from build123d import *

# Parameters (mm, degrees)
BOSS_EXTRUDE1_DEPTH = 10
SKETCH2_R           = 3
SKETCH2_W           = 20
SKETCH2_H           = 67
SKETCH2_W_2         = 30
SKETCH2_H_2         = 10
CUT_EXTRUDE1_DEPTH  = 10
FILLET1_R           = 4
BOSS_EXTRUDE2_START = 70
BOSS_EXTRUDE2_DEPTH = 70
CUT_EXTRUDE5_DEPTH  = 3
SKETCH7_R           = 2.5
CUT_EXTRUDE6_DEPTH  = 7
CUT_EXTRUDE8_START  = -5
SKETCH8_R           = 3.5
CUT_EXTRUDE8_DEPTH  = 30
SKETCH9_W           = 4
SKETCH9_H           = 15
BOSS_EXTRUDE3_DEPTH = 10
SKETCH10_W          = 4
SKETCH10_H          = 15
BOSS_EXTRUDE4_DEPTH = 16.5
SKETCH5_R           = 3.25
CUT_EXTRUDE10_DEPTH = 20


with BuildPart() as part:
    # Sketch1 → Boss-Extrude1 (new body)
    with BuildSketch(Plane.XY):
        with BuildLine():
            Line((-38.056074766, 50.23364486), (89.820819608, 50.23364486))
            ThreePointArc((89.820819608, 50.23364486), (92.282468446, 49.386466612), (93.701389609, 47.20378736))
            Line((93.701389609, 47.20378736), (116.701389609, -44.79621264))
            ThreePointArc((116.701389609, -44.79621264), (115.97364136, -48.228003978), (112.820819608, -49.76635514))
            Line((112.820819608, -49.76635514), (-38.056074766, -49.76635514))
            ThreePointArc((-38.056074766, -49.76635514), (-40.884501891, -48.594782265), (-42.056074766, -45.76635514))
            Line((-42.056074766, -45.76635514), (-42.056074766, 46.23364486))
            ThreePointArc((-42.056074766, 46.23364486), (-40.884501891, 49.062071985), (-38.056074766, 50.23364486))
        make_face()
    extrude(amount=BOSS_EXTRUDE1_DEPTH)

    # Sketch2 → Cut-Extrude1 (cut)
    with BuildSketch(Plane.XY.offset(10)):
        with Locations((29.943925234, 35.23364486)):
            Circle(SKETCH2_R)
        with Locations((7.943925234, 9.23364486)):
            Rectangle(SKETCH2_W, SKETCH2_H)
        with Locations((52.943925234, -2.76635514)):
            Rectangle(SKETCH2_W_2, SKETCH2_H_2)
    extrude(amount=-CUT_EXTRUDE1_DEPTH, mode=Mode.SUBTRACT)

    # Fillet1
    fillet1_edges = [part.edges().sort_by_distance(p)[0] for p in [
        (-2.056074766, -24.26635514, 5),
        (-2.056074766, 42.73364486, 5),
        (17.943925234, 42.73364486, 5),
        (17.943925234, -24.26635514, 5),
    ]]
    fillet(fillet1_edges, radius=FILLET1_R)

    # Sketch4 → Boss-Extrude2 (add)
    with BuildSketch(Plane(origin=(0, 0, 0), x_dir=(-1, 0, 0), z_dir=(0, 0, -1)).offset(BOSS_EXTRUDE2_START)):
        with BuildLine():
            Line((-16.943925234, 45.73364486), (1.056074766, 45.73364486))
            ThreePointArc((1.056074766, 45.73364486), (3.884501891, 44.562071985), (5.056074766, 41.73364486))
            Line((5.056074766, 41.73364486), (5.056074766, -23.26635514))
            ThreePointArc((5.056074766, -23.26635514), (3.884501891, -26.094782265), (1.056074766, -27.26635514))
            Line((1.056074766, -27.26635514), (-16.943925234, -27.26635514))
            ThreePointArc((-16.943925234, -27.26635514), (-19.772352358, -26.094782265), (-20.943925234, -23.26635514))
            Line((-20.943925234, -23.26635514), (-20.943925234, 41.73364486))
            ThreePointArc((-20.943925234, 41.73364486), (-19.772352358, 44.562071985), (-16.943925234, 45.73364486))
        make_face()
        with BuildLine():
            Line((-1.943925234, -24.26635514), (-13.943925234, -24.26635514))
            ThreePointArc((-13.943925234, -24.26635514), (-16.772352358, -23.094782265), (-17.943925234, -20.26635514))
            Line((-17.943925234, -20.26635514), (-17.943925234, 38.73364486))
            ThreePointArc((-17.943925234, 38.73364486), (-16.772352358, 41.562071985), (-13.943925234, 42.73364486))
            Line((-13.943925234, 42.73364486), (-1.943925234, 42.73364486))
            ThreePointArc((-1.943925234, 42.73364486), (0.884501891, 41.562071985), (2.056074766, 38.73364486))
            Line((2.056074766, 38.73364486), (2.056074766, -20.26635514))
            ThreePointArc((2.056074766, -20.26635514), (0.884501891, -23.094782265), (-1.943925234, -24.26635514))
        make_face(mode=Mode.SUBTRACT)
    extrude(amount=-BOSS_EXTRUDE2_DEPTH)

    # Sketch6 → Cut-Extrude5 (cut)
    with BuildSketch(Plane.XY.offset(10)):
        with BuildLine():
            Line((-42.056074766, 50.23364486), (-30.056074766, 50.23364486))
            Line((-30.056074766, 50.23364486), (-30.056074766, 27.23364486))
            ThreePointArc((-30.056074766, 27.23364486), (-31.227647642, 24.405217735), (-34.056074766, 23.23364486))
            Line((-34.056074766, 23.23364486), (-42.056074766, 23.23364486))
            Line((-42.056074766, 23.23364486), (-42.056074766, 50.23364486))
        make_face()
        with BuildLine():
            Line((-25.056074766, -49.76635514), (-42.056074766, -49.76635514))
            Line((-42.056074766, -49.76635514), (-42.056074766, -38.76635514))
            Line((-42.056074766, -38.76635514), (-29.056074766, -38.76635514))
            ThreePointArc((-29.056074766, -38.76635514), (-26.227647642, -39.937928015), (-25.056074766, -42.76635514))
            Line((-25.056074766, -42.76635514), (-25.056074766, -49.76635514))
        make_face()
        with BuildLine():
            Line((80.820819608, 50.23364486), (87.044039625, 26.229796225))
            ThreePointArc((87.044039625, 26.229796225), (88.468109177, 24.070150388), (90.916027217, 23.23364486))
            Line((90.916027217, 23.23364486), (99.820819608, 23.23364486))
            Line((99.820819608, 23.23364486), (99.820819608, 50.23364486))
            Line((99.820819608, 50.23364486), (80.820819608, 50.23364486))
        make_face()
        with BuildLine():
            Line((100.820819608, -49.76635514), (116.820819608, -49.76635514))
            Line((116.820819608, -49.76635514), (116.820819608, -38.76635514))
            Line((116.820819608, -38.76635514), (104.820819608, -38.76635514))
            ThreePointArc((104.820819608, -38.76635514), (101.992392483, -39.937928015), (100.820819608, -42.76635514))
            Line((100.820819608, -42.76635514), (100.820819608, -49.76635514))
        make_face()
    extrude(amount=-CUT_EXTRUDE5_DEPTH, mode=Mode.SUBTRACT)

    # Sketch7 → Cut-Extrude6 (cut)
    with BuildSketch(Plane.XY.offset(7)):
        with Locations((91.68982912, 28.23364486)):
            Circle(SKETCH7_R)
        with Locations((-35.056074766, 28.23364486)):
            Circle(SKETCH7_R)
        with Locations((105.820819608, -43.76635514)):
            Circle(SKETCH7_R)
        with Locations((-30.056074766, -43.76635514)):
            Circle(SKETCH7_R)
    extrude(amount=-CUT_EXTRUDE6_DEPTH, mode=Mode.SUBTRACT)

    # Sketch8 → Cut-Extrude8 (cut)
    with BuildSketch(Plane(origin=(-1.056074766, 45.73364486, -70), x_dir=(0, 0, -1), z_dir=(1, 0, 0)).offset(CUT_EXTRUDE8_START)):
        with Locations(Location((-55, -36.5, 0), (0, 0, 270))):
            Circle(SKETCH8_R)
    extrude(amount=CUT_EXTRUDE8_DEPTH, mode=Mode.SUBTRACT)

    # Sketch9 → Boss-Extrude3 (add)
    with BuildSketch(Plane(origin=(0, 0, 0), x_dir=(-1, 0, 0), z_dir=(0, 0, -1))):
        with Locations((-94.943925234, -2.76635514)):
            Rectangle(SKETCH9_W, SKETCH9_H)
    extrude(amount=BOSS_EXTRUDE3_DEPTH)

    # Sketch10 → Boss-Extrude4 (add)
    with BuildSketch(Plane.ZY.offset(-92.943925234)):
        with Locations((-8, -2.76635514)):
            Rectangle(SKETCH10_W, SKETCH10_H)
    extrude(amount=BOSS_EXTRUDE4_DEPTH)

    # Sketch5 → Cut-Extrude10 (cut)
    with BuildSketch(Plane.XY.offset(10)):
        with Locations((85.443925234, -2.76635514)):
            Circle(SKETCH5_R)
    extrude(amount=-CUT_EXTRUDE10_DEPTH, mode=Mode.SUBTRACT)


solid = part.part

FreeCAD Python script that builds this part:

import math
import FreeCAD as App
import Part
import Sketcher
from FreeCAD import Vector


def edges_at(feature, points):
    """Names of the edges that pass closest to the given points."""
    edges = feature.Shape.Edges
    near = lambda p: min(range(len(edges)), key=lambda i: edges[i].distToShape(Part.Vertex(*p))[0])
    return sorted({f"Edge{near(p) + 1}" for p in points})


def add_polygon(sketch, points):
    """Adds a closed chain of lines whose ends are joined by coincident constraints."""
    first, n = sketch.GeometryCount, len(points)
    for a, b in zip(points, points[1:] + points[:1]):
        sketch.addGeometry(Part.LineSegment(App.Vector(*a, 0), App.Vector(*b, 0)), False)
    for i in range(n):
        sketch.addConstraint(Sketcher.Constraint("Coincident", first + i, 2, first + (i + 1) % n, 1))

doc = App.newDocument("Part")
body = doc.addObject("PartDesign::Body", "Body")

# Sketch on XY plane
sketch1 = body.newObject("Sketcher::SketchObject", "Sketch")
sketch1.AttachmentSupport = (doc.getObject("XY_Plane"), [""])
sketch1.MapMode = "FlatFace"
sketch1.addGeometry([
    Part.LineSegment(Vector(89.8, 50.2, 0), Vector(-38.1, 50.2, 0)),  # 0
    Part.ArcOfCircle(Part.Circle(Vector(-38.1, 46.2, 0), Vector(0, 0, 1), 4), math.radians(90), math.radians(180)),  # 1
    Part.LineSegment(Vector(-42.1, 46.2, 0), Vector(-42.1, -45.8, 0)),  # 2
    Part.ArcOfCircle(Part.Circle(Vector(-38.1, -45.8, 0), Vector(0, 0, 1), 4), math.radians(180), math.radians(270)),  # 3
    Part.LineSegment(Vector(-38.1, -49.8, 0), Vector(112.8, -49.8, 0)),  # 4
    Part.ArcOfCircle(Part.Circle(Vector(112.8, -45.8, 0), Vector(0, 0, 1), 4), math.radians(-90), math.radians(14)),  # 5
    Part.LineSegment(Vector(116.7, -44.8, 0), Vector(93.7, 47.2, 0)),  # 6
    Part.ArcOfCircle(Part.Circle(Vector(89.8, 46.2, 0), Vector(0, 0, 1), 4), math.radians(14), math.radians(90)),  # 7
], False)
sketch1.addConstraint([
    Sketcher.Constraint("Tangent", 0, 2, 1, 1),
    Sketcher.Constraint("Tangent", 1, 2, 2, 1),
    Sketcher.Constraint("Tangent", 2, 2, 3, 1),
    Sketcher.Constraint("Tangent", 3, 2, 4, 1),
    Sketcher.Constraint("Tangent", 4, 2, 5, 1),
    Sketcher.Constraint("Tangent", 5, 2, 6, 1),
    Sketcher.Constraint("Tangent", 6, 2, 7, 1),
    Sketcher.Constraint("Tangent", 7, 2, 0, 1),
    Sketcher.Constraint("Horizontal", 0),
    Sketcher.Constraint("Vertical", 2),
    Sketcher.Constraint("Horizontal", 4),
    Sketcher.Constraint("Equal", 1, 3),
    Sketcher.Constraint("Equal", 3, 5),
    Sketcher.Constraint("Equal", 5, 7),
    Sketcher.Constraint("Radius", 1, 4.0),
    Sketcher.Constraint("DistanceY", 2, 2, 2, 1, 92.0),
    Sketcher.Constraint("DistanceX", 7, 3, 5, 3, 23.0),
    Sketcher.Constraint("DistanceX", 0, 2, 0, 1, 127.876894),
    Sketcher.Constraint("DistanceX", -1, 1, 5, 3, 112.82082),
    Sketcher.Constraint("DistanceY", -1, 1, 1, 3, 46.233645),
])
pad1 = body.newObject("PartDesign::Pad", "Pad")
pad1.Profile = sketch1
pad1.Length = 10

# Sketch on XY plane
sketch2 = body.newObject("Sketcher::SketchObject", "Sketch001")
sketch2.AttachmentSupport = (doc.getObject("XY_Plane"), [""])
sketch2.MapMode = "FlatFace"
sketch2.AttachmentOffset = App.Placement(Vector(0, 0, 10), App.Rotation())
sketch2.addGeometry(Part.Circle(Vector(29.9, 35.2, 0), Vector(0, 0, 1), 3), False)  # 0
add_polygon(sketch2, [(-2.1, 42.7), (-2.1, -24.3), (17.9, -24.3), (17.9, 42.7)])  # lines 1-4
add_polygon(sketch2, [(37.9, 2.2), (37.9, -7.8), (67.9, -7.8), (67.9, 2.2)])  # lines 5-8
sketch2.addConstraint([
    Sketcher.Constraint("Vertical", 1),
    Sketcher.Constraint("Horizontal", 2),
    Sketcher.Constraint("Vertical", 3),
    Sketcher.Constraint("Horizontal", 4),
    Sketcher.Constraint("Vertical", 5),
    Sketcher.Constraint("Horizontal", 6),
    Sketcher.Constraint("Vertical", 7),
    Sketcher.Constraint("Horizontal", 8),
    Sketcher.Constraint("Diameter", 0, 6.0),
    Sketcher.Constraint("DistanceX", 2, 1, 2, 2, 20.0),
    Sketcher.Constraint("DistanceX", 6, 1, 6, 2, 30.0),
    Sketcher.Constraint("DistanceY", 1, 2, 1, 1, 67.0),
    Sketcher.Constraint("DistanceY", 5, 2, 5, 1, 10.0),
    Sketcher.Constraint("DistanceX", 1, 2, 0, 3, 32.0),
    Sketcher.Constraint("DistanceX", 2, 2, 5, 2, 20.0),
    Sketcher.Constraint("DistanceY", 5, 2, 0, 3, 43.0),
    Sketcher.Constraint("DistanceY", 1, 2, 0, 3, 59.5),
    Sketcher.Constraint("DistanceX", -1, 1, 0, 3, 29.943925),
    Sketcher.Constraint("DistanceY", -1, 1, 0, 3, 35.233645),
])
pocket1 = body.newObject("PartDesign::Pocket", "Pocket")
pocket1.Profile = sketch2
pocket1.Length = 10
doc.recompute()

fillet = body.newObject("PartDesign::Fillet", "Fillet")
fillet.Base = (pocket1, edges_at(pocket1, [
    (-2.056, -24.266, 5),
    (-2.056, 42.734, 5),
    (17.944, 42.734, 5),
    (17.944, -24.266, 5),
]))
fillet.Radius = 4

# Sketch on XY plane
sketch3 = body.newObject("Sketcher::SketchObject", "Sketch002")
sketch3.AttachmentSupport = (doc.getObject("XY_Plane"), [""])
sketch3.MapMode = "FlatFace"
sketch3.AttachmentOffset = App.Placement(Vector(0, 0, -70), App.Rotation())
sketch3.addGeometry([
    Part.LineSegment(Vector(-1.1, 45.7, 0), Vector(16.9, 45.7, 0)),  # 0
    Part.ArcOfCircle(Part.Circle(Vector(16.9, 41.7, 0), Vector(0, 0, 1), 4), math.radians(0), math.radians(90)),  # 1
    Part.LineSegment(Vector(20.9, 41.7, 0), Vector(20.9, -23.3, 0)),  # 2
    Part.ArcOfCircle(Part.Circle(Vector(16.9, -23.3, 0), Vector(0, 0, 1), 4), math.radians(-90), math.radians(0)),  # 3
    Part.LineSegment(Vector(16.9, -27.3, 0), Vector(-1.1, -27.3, 0)),  # 4
    Part.ArcOfCircle(Part.Circle(Vector(-1.1, -23.3, 0), Vector(0, 0, 1), 4), math.radians(180), math.radians(270)),  # 5
    Part.LineSegment(Vector(-5.1, -23.3, 0), Vector(-5.1, 41.7, 0)),  # 6
    Part.ArcOfCircle(Part.Circle(Vector(-1.1, 41.7, 0), Vector(0, 0, 1), 4), math.radians(90), math.radians(180)),  # 7
    Part.LineSegment(Vector(1.9, -24.3, 0), Vector(13.9, -24.3, 0)),  # 8
    Part.ArcOfCircle(Part.Circle(Vector(13.9, -20.3, 0), Vector(0, 0, 1), 4), math.radians(-90), math.radians(0)),  # 9
    Part.LineSegment(Vector(17.9, -20.3, 0), Vector(17.9, 38.7, 0)),  # 10
    Part.ArcOfCircle(Part.Circle(Vector(13.9, 38.7, 0), Vector(0, 0, 1), 4), math.radians(0), math.radians(90)),  # 11
    Part.LineSegment(Vector(13.9, 42.7, 0), Vector(1.9, 42.7, 0)),  # 12
    Part.ArcOfCircle(Part.Circle(Vector(1.9, 38.7, 0), Vector(0, 0, 1), 4), math.radians(90), math.radians(180)),  # 13
    Part.LineSegment(Vector(-2.1, 38.7, 0), Vector(-2.1, -20.3, 0)),  # 14
    Part.ArcOfCircle(Part.Circle(Vector(1.9, -20.3, 0), Vector(0, 0, 1), 4), math.radians(180), math.radians(270)),  # 15
], False)
sketch3.addConstraint([
    Sketcher.Constraint("Tangent", 0, 2, 1, 2),
    Sketcher.Constraint("Tangent", 1, 1, 2, 1),
    Sketcher.Constraint("Tangent", 2, 2, 3, 2),
    Sketcher.Constraint("Tangent", 3, 1, 4, 1),
    Sketcher.Constraint("Tangent", 4, 2, 5, 2),
    Sketcher.Constraint("Tangent", 5, 1, 6, 1),
    Sketcher.Constraint("Tangent", 6, 2, 7, 2),
    Sketcher.Constraint("Tangent", 7, 1, 0, 1),
    Sketcher.Constraint("Tangent", 8, 2, 9, 1),
    Sketcher.Constraint("Tangent", 9, 2, 10, 1),
    Sketcher.Constraint("Tangent", 10, 2, 11, 1),
    Sketcher.Constraint("Tangent", 11, 2, 12, 1),
    Sketcher.Constraint("Tangent", 12, 2, 13, 1),
    Sketcher.Constraint("Tangent", 13, 2, 14, 1),
    Sketcher.Constraint("Tangent", 14, 2, 15, 1),
    Sketcher.Constraint("Tangent", 15, 2, 8, 1),
    Sketcher.Constraint("Horizontal", 0),
    Sketcher.Constraint("Vertical", 2),
    Sketcher.Constraint("Horizontal", 4),
    Sketcher.Constraint("Vertical", 6),
    Sketcher.Constraint("Horizontal", 8),
    Sketcher.Constraint("Vertical", 10),
    Sketcher.Constraint("Horizontal", 12),
    Sketcher.Constraint("Vertical", 14),
    Sketcher.Constraint("Equal", 1, 3),
    Sketcher.Constraint("Equal", 3, 5),
    Sketcher.Constraint("Equal", 5, 7),
    Sketcher.Constraint("Equal", 7, 9),
    Sketcher.Constraint("Equal", 9, 11),
    Sketcher.Constraint("Equal", 11, 13),
    Sketcher.Constraint("Equal", 13, 15),
    Sketcher.Constraint("Radius", 1, 4.0),
    Sketcher.Constraint("DistanceX", 0, 1, 0, 2, 18.0),
    Sketcher.Constraint("DistanceX", 8, 1, 8, 2, 12.0),
    Sketcher.Constraint("DistanceY", 2, 2, 2, 1, 65.0),
    Sketcher.Constraint("DistanceY", 10, 1, 10, 2, 59.0),
    Sketcher.Constraint("DistanceX", 9, 3, 3, 3, 3.0),
    Sketcher.Constraint("DistanceY", 3, 3, 9, 3, 3.0),
    Sketcher.Constraint("DistanceX", -1, 1, 1, 3, 16.943925),
    Sketcher.Constraint("DistanceY", -1, 1, 1, 3, 41.733645),
])
pad2 = body.newObject("PartDesign::Pad", "Pad001")
pad2.Profile = sketch3
pad2.Length = 70

# Sketch on XY plane
sketch4 = body.newObject("Sketcher::SketchObject", "Sketch003")
sketch4.AttachmentSupport = (doc.getObject("XY_Plane"), [""])
sketch4.MapMode = "FlatFace"
sketch4.AttachmentOffset = App.Placement(Vector(0, 0, 10), App.Rotation())
sketch4.addGeometry([
    Part.LineSegment(Vector(-30.1, 50.2, 0), Vector(-42.1, 50.2, 0)),  # 0
    Part.LineSegment(Vector(-42.1, 50.2, 0), Vector(-42.1, 23.2, 0)),  # 1
    Part.LineSegment(Vector(-42.1, 23.2, 0), Vector(-34.1, 23.2, 0)),  # 2
    Part.ArcOfCircle(Part.Circle(Vector(-34.1, 27.2, 0), Vector(0, 0, 1), 4), math.radians(-90), math.radians(0)),  # 3
    Part.LineSegment(Vector(-30.1, 27.2, 0), Vector(-30.1, 50.2, 0)),  # 4
    Part.LineSegment(Vector(-42.1, -49.8, 0), Vector(-25.1, -49.8, 0)),  # 5
    Part.LineSegment(Vector(-25.1, -49.8, 0), Vector(-25.1, -42.8, 0)),  # 6
    Part.ArcOfCircle(Part.Circle(Vector(-29.1, -42.8, 0), Vector(0, 0, 1), 4), math.radians(0), math.radians(90)),  # 7
    Part.LineSegment(Vector(-29.1, -38.8, 0), Vector(-42.1, -38.8, 0)),  # 8
    Part.LineSegment(Vector(-42.1, -38.8, 0), Vector(-42.1, -49.8, 0)),  # 9
    Part.LineSegment(Vector(80.8, 50.2, 0), Vector(87, 26.2, 0)),  # 10
    Part.ArcOfCircle(Part.Circle(Vector(90.9, 27.2, 0), Vector(0, 0, 1), 4), math.radians(-165), math.radians(-90)),  # 11
    Part.LineSegment(Vector(90.9, 23.2, 0), Vector(99.8, 23.2, 0)),  # 12
    Part.LineSegment(Vector(99.8, 23.2, 0), Vector(99.8, 50.2, 0)),  # 13
    Part.LineSegment(Vector(99.8, 50.2, 0), Vector(80.8, 50.2, 0)),  # 14
    Part.LineSegment(Vector(100.8, -49.8, 0), Vector(116.8, -49.8, 0)),  # 15
    Part.LineSegment(Vector(116.8, -49.8, 0), Vector(116.8, -38.8, 0)),  # 16
    Part.LineSegment(Vector(116.8, -38.8, 0), Vector(104.8, -38.8, 0)),  # 17
    Part.ArcOfCircle(Part.Circle(Vector(104.8, -42.8, 0), Vector(0, 0, 1), 4), math.radians(90), math.radians(180)),  # 18
    Part.LineSegment(Vector(100.8, -42.8, 0), Vector(100.8, -49.8, 0)),  # 19
], False)
sketch4.addConstraint([
    Sketcher.Constraint("Coincident", 0, 2, 1, 1),
    Sketcher.Constraint("Coincident", 1, 2, 2, 1),
    Sketcher.Constraint("Tangent", 2, 2, 3, 1),
    Sketcher.Constraint("Tangent", 3, 2, 4, 1),
    Sketcher.Constraint("Coincident", 4, 2, 0, 1),
    Sketcher.Constraint("Coincident", 5, 2, 6, 1),
    Sketcher.Constraint("Tangent", 6, 2, 7, 1),
    Sketcher.Constraint("Tangent", 7, 2, 8, 1),
    Sketcher.Constraint("Coincident", 8, 2, 9, 1),
    Sketcher.Constraint("Coincident", 9, 2, 5, 1),
    Sketcher.Constraint("Tangent", 10, 2, 11, 1),
    Sketcher.Constraint("Tangent", 11, 2, 12, 1),
    Sketcher.Constraint("Coincident", 12, 2, 13, 1),
    Sketcher.Constraint("Coincident", 13, 2, 14, 1),
    Sketcher.Constraint("Coincident", 14, 2, 10, 1),
    Sketcher.Constraint("Coincident", 15, 2, 16, 1),
    Sketcher.Constraint("Coincident", 16, 2, 17, 1),
    Sketcher.Constraint("Tangent", 17, 2, 18, 1),
    Sketcher.Constraint("Tangent", 18, 2, 19, 1),
    Sketcher.Constraint("Coincident", 19, 2, 15, 1),
    Sketcher.Constraint("Horizontal", 0),
    Sketcher.Constraint("Vertical", 1),
    Sketcher.Constraint("Horizontal", 2),
    Sketcher.Constraint("Vertical", 4),
    Sketcher.Constraint("Horizontal", 5),
    Sketcher.Constraint("Vertical", 6),
    Sketcher.Constraint("Horizontal", 8),
    Sketcher.Constraint("Vertical", 9),
    Sketcher.Constraint("Horizontal", 12),
    Sketcher.Constraint("Vertical", 13),
    Sketcher.Constraint("Horizontal", 14),
    Sketcher.Constraint("Horizontal", 15),
    Sketcher.Constraint("Vertical", 16),
    Sketcher.Constraint("Horizontal", 17),
    Sketcher.Constraint("Vertical", 19),
    Sketcher.Constraint("Equal", 3, 7),
    Sketcher.Constraint("Equal", 7, 11),
    Sketcher.Constraint("Equal", 11, 18),
    Sketcher.Constraint("Horizontal", 3, 3, 11, 3),
    Sketcher.Constraint("Horizontal", 7, 3, 18, 3),
    Sketcher.Constraint("Horizontal", 4, 2, 13, 2),
    Sketcher.Constraint("Horizontal", 9, 2, 15, 2),
    Sketcher.Constraint("Vertical", 1, 2, 8, 2),
    Sketcher.Constraint("Equal", 0, 17),
    Sketcher.Constraint("Radius", 3, 4.0),
    Sketcher.Constraint("DistanceX", 0, 2, 0, 1, 12.0),
    Sketcher.Constraint("DistanceX", 5, 1, 5, 2, 17.0),
    Sketcher.Constraint("DistanceX", 14, 2, 14, 1, 19.0),
    Sketcher.Constraint("DistanceY", 1, 2, 1, 1, 27.0),
    Sketcher.Constraint("DistanceY", 6, 1, 6, 2, 7.0),
    Sketcher.Constraint("DistanceY", 7, 3, 3, 3, 70.0),
    Sketcher.Constraint("DistanceX", 12, 2, 18, 3, 5.0),
    Sketcher.Constraint("DistanceX", 3, 3, 11, 3, 124.972102),
    Sketcher.Constraint("DistanceX", 12, 1, 12, 2, 8.904792),
    Sketcher.Constraint("DistanceX", -1, 1, 18, 3, 104.82082),
    Sketcher.Constraint("DistanceY", -1, 1, 3, 3, 27.233645),
])
pocket2 = body.newObject("PartDesign::Pocket", "Pocket001")
pocket2.Profile = sketch4
pocket2.Length = 3

# Sketch on XY plane
sketch5 = body.newObject("Sketcher::SketchObject", "Sketch004")
sketch5.AttachmentSupport = (doc.getObject("XY_Plane"), [""])
sketch5.MapMode = "FlatFace"
sketch5.AttachmentOffset = App.Placement(Vector(0, 0, 7), App.Rotation())
sketch5.addGeometry([
    Part.Circle(Vector(91.7, 28.2, 0), Vector(0, 0, 1), 2.5),
    Part.Circle(Vector(-35.1, 28.2, 0), Vector(0, 0, 1), 2.5),
    Part.Circle(Vector(105.8, -43.8, 0), Vector(0, 0, 1), 2.5),
    Part.Circle(Vector(-30.1, -43.8, 0), Vector(0, 0, 1), 2.5),
], False)
sketch5.addConstraint([
    Sketcher.Constraint("Equal", 0, 1),
    Sketcher.Constraint("Equal", 1, 2),
    Sketcher.Constraint("Equal", 2, 3),
    Sketcher.Constraint("Horizontal", 0, 3, 1, 3),
    Sketcher.Constraint("Horizontal", 2, 3, 3, 3),
    Sketcher.Constraint("Diameter", 0, 5.0),
    Sketcher.Constraint("DistanceY", 2, 3, 0, 3, 72.0),
    Sketcher.Constraint("DistanceX", 1, 3, 3, 3, 5.0),
    Sketcher.Constraint("DistanceX", -1, 1, 0, 3, 91.689829),
    Sketcher.Constraint("DistanceX", -1, 1, 2, 3, 105.82082),
    Sketcher.Constraint("DistanceY", -1, 1, 0, 3, 28.233645),
    Sketcher.Constraint("DistanceX", 1, 3, -1, 1, 35.056075),
])
pocket3 = body.newObject("PartDesign::Pocket", "Pocket002")
pocket3.Profile = sketch5
pocket3.Length = 7

# Sketch on YZ plane
sketch6 = body.newObject("Sketcher::SketchObject", "Sketch005")
sketch6.AttachmentSupport = (doc.getObject("YZ_Plane"), [""])
sketch6.MapMode = "FlatFace"
sketch6.AttachmentOffset = App.Placement(Vector(0, 0, -6.056075), App.Rotation())
sketch6.addGeometry(Part.Circle(Vector(9.2, -15, 0), Vector(0, 0, 1), 3.5), False)
sketch6.addConstraint([
    Sketcher.Constraint("Diameter", 0, 7.0),
    Sketcher.Constraint("DistanceY", 0, 3, -1, 1, 15.0),
    Sketcher.Constraint("DistanceX", -1, 1, 0, 3, 9.233645),
])
pocket4 = body.newObject("PartDesign::Pocket", "Pocket003")
pocket4.Profile = sketch6
pocket4.Length = 30
pocket4.Reversed = True

# Sketch on XY plane
sketch7 = body.newObject("Sketcher::SketchObject", "Sketch006")
sketch7.AttachmentSupport = (doc.getObject("XY_Plane"), [""])
sketch7.MapMode = "FlatFace"
add_polygon(sketch7, [(96.9, 4.7), (96.9, -10.3), (92.9, -10.3), (92.9, 4.7)])  # lines 0-3
sketch7.addConstraint([
    Sketcher.Constraint("Vertical", 0),
    Sketcher.Constraint("Horizontal", 1),
    Sketcher.Constraint("Vertical", 2),
    Sketcher.Constraint("Horizontal", 3),
    Sketcher.Constraint("DistanceX", 1, 2, 1, 1, 4.0),
    Sketcher.Constraint("DistanceY", 0, 2, 0, 1, 15.0),
    Sketcher.Constraint("DistanceX", -1, 1, 0, 2, 96.943925),
    Sketcher.Constraint("DistanceY", 0, 2, -1, 1, 10.266355),
])
pad3 = body.newObject("PartDesign::Pad", "Pad002")
pad3.Profile = sketch7
pad3.Length = 10
pad3.Reversed = True

# Sketch on YZ plane
sketch8 = body.newObject("Sketcher::SketchObject", "Sketch007")
sketch8.AttachmentSupport = (doc.getObject("YZ_Plane"), [""])
sketch8.MapMode = "FlatFace"
sketch8.AttachmentOffset = App.Placement(Vector(0, 0, 92.943925), App.Rotation())
add_polygon(sketch8, [(4.7, -10), (-10.3, -10), (-10.3, -6), (4.7, -6)])  # lines 0-3
sketch8.addConstraint([
    Sketcher.Constraint("Horizontal", 0),
    Sketcher.Constraint("Vertical", 1),
    Sketcher.Constraint("Horizontal", 2),
    Sketcher.Constraint("Vertical", 3),
    Sketcher.Constraint("DistanceX", 0, 2, 0, 1, 15.0),
    Sketcher.Constraint("DistanceY", 1, 1, 1, 2, 4.0),
    Sketcher.Constraint("DistanceY", 0, 2, -1, 1, 10.0),
    Sketcher.Constraint("DistanceX", 0, 2, -1, 1, 10.266355),
])
pad4 = body.newObject("PartDesign::Pad", "Pad003")
pad4.Profile = sketch8
pad4.Length = 16.5
pad4.Reversed = True

# Sketch on XY plane
sketch9 = body.newObject("Sketcher::SketchObject", "Sketch008")
sketch9.AttachmentSupport = (doc.getObject("XY_Plane"), [""])
sketch9.MapMode = "FlatFace"
sketch9.AttachmentOffset = App.Placement(Vector(0, 0, 10), App.Rotation())
sketch9.addGeometry(Part.Circle(Vector(85.4, -2.8, 0), Vector(0, 0, 1), 3.2), False)
sketch9.addConstraint([
    Sketcher.Constraint("Diameter", 0, 6.5),
    Sketcher.Constraint("DistanceX", -1, 1, 0, 3, 85.443925),
    Sketcher.Constraint("DistanceY", 0, 3, -1, 1, 2.766355),
])
pocket5 = body.newObject("PartDesign::Pocket", "Pocket004")
pocket5.Profile = sketch9
pocket5.Length = 20

doc.recompute()
